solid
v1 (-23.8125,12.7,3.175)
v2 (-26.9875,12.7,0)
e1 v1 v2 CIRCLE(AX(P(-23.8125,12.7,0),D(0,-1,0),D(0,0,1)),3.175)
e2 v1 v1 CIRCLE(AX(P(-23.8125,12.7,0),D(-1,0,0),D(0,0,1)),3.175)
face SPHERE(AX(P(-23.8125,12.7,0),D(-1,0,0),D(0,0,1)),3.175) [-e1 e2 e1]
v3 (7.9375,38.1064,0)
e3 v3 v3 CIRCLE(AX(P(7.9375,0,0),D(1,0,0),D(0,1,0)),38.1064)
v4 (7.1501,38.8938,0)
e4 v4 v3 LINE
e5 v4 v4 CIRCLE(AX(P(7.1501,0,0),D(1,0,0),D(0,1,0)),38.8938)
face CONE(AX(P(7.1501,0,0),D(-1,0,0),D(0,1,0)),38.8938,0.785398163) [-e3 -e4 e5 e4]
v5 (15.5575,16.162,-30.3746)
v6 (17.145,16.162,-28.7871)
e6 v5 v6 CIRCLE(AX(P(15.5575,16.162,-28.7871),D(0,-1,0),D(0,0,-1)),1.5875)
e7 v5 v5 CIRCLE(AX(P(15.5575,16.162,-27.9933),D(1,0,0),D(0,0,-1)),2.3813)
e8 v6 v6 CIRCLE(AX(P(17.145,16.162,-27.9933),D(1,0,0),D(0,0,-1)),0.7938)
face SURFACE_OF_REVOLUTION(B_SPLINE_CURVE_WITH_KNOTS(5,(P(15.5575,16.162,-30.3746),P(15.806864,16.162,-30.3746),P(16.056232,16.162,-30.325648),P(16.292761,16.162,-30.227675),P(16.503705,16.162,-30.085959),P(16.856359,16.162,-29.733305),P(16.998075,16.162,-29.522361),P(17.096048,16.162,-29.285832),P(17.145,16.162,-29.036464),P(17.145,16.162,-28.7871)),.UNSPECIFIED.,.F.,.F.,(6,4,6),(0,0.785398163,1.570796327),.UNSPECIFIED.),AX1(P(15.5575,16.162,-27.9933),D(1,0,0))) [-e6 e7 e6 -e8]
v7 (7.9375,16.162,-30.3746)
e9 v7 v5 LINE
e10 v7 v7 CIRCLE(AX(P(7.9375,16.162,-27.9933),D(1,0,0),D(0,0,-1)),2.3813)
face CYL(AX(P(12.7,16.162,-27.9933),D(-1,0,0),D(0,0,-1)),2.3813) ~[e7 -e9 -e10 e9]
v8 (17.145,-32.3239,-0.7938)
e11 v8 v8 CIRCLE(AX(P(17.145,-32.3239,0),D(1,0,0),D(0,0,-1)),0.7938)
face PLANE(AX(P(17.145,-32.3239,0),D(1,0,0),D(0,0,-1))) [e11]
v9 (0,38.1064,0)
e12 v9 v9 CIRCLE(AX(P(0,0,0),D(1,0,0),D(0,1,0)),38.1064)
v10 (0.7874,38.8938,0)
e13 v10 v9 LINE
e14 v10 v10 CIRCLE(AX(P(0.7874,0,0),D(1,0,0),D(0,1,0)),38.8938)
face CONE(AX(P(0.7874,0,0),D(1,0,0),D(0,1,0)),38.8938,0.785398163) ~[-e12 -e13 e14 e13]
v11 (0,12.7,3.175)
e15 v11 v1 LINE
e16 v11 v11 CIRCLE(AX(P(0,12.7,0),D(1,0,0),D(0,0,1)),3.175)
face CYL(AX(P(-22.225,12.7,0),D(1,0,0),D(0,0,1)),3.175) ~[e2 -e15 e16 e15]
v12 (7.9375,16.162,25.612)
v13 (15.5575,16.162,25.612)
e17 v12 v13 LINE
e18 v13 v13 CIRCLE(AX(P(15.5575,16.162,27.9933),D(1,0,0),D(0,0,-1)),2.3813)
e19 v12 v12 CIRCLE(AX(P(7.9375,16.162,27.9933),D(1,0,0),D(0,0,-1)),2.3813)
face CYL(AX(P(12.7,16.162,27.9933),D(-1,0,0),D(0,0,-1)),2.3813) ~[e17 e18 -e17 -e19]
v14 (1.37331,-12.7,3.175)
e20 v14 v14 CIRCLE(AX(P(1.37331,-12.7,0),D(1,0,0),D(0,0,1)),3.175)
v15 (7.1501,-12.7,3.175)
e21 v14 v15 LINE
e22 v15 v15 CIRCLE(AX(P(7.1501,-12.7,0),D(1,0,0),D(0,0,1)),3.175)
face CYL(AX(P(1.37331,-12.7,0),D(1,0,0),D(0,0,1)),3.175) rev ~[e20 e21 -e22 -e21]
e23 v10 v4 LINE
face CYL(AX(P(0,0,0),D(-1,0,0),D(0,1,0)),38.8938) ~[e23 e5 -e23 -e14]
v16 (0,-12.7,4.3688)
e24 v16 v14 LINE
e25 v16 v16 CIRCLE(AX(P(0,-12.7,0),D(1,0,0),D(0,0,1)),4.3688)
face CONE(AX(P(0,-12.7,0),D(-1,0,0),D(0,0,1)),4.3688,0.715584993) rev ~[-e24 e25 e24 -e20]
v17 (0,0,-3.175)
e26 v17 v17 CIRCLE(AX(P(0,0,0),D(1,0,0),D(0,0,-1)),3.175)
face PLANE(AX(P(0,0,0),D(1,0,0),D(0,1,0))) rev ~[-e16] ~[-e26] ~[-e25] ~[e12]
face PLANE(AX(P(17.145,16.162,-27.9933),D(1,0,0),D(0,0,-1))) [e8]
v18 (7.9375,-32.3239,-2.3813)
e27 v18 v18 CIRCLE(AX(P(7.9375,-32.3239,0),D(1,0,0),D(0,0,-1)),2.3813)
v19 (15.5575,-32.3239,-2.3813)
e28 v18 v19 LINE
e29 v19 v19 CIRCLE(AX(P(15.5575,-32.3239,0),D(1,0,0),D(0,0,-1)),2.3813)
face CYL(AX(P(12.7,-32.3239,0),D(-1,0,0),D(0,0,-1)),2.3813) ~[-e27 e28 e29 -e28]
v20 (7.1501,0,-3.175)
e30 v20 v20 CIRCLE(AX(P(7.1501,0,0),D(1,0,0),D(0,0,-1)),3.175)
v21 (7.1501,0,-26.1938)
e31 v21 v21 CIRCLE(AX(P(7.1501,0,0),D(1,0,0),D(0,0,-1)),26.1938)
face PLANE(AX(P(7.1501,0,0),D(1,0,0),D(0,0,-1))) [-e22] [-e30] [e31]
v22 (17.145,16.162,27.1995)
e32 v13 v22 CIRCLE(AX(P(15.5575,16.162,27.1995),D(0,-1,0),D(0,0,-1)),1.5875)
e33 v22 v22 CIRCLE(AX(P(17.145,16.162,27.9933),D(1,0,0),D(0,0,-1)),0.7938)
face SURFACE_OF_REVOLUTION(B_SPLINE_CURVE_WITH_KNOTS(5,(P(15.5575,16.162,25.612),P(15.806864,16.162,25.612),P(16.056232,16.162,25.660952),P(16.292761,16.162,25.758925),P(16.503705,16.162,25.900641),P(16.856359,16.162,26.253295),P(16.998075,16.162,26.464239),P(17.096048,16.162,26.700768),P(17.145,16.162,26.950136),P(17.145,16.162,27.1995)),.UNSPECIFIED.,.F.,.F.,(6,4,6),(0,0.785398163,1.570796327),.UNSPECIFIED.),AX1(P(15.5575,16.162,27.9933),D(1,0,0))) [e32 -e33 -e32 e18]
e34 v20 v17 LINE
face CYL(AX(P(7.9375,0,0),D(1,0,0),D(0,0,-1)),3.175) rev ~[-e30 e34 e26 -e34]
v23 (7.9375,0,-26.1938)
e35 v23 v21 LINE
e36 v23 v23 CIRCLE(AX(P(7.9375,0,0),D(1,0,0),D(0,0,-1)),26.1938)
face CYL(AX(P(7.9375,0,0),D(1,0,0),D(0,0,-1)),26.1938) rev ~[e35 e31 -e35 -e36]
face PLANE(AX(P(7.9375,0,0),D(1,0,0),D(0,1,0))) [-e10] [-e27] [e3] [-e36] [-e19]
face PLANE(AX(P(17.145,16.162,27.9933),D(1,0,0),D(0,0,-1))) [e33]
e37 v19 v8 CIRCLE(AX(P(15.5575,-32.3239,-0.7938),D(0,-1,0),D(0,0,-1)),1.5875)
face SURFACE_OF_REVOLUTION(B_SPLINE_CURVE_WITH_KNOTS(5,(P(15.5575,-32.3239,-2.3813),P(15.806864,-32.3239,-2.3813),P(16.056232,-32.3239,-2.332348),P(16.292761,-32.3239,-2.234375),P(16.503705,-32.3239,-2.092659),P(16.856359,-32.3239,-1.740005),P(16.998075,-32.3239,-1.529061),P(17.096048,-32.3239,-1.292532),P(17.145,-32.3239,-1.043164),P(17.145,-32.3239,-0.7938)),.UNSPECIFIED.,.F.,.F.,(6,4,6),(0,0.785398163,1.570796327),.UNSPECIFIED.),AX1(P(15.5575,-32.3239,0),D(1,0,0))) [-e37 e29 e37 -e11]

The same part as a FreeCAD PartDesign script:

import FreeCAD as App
import Part
import Sketcher

V = App.Vector
Q = App.Units.Quantity


def edges_at(feature, points):
    """Names of the edges that pass closest to the given points."""
    edges = feature.Shape.Edges
    near = lambda p: min(range(len(edges)), key=lambda i: edges[i].distToShape(Part.Vertex(*p))[0])
    return sorted({f"Edge{near(p) + 1}" for p in points})

doc = App.newDocument("Part")
body = doc.addObject("PartDesign::Body", "Body")

# Sketch on YZ plane
sketch1 = body.newObject("Sketcher::SketchObject", "Sketch")
sketch1.AttachmentSupport = (doc.getObject("YZ_Plane"), [""])
sketch1.MapMode = "FlatFace"
sketch1.addGeometry(Part.Circle(V(0, 0, 0), V(0, 0, 1), 39), False)
sketch1.addConstraint([
    Sketcher.Constraint("Coincident", 0, 3, -1, 1),
    Sketcher.Constraint("Diameter", 0, Q("3.0625 in")),
])
pad1 = body.newObject("PartDesign::Pad", "Pad")
pad1.Profile = sketch1
pad1.Length = Q("0.3125 in")
doc.recompute()

chamfer = body.newObject("PartDesign::Chamfer", "Chamfer")
chamfer.Base = (pad1, edges_at(pad1, [(7.938, -38.894, 0), (0, -38.894, 0)]))
chamfer.Size = Q("0.031 in")

# Sketch on YZ plane
sketch2 = body.newObject("Sketcher::SketchObject", "Sketch001")
sketch2.AttachmentSupport = (doc.getObject("YZ_Plane"), [""])
sketch2.MapMode = "FlatFace"
sketch2.AttachmentOffset = App.Placement(V(0, 0, 0.3125 * 25.4), App.Rotation())
sketch2.addGeometry(Part.Circle(V(0, 0, 0), V(0, 0, 1), 3.2), False)
sketch2.addConstraint([
    Sketcher.Constraint("Coincident", 0, 3, -1, 1),
    Sketcher.Constraint("Diameter", 0, Q("0.25 in")),
])
pocket1 = body.newObject("PartDesign::Pocket", "Pocket")
pocket1.Profile = sketch2
pocket1.Length = Q("0.3125 in")

# Sketch on YZ plane
sketch3 = body.newObject("Sketcher::SketchObject", "Sketch002")
sketch3.AttachmentSupport = (doc.getObject("YZ_Plane"), [""])
sketch3.MapMode = "FlatFace"
sketch3.addGeometry(Part.Circle(V(-12.7, 0, 0), V(0, 0, 1), 3.2), False)
sketch3.addConstraint([
    Sketcher.Constraint("PointOnObject", 0, 3, -1),
    Sketcher.Constraint("Diameter", 0, Q("0.25 in")),
    Sketcher.Constraint("DistanceX", 0, 3, -1, 1, Q("0.5 in")),
])
doc.recompute()
hole = body.newObject("PartDesign::Hole", "Hole")
hole.Profile = sketch3
hole.ThreadType = "None"
hole.Diameter = Q("0.25 in")
hole.DepthType = "ThroughAll"
hole.HoleCutType = "Countersink"
hole.HoleCutDiameter = Q("0.344 in")
hole.HoleCutCountersinkAngle = 82
hole.Reversed = True

# Sketch on YZ plane
sketch4 = body.newObject("Sketcher::SketchObject", "Sketch003")
sketch4.AttachmentSupport = (doc.getObject("YZ_Plane"), [""])
sketch4.MapMode = "FlatFace"
sketch4.AttachmentOffset = App.Placement(V(0, 0, 0.3125 * 25.4), App.Rotation())
sketch4.addGeometry(Part.Circle(V(0, 0, 0), V(0, 0, 1), 26), False)
sketch4.addConstraint([
    Sketcher.Constraint("Coincident", 0, 3, -1, 1),
    Sketcher.Constraint("Diameter", 0, Q("2.0625 in")),
])
pocket2 = body.newObject("PartDesign::Pocket", "Pocket001")
pocket2.Profile = sketch4
pocket2.Length = Q("0.031 in")

# Sketch on YZ plane
sketch5 = body.newObject("Sketcher::SketchObject", "Sketch004")
sketch5.AttachmentSupport = (doc.getObject("YZ_Plane"), [""])
sketch5.MapMode = "FlatFace"
sketch5.addGeometry(Part.Circle(V(12.7, 0, 0), V(0, 0, 1), 3.2), False)
sketch5.addConstraint([
    Sketcher.Constraint("PointOnObject", 0, 3, -1),
    Sketcher.Constraint("Diameter", 0, Q("0.25 in")),
    Sketcher.Constraint("DistanceX", -1, 1, 0, 3, Q("0.5 in")),
])
pad2 = body.newObject("PartDesign::Pad", "Pad001")
pad2.Profile = sketch5
pad2.Length = Q("0.875 in")
pad2.Reversed = True

# Sketch on YZ plane
sketch6 = body.newObject("Sketcher::SketchObject", "Sketch005")
sketch6.AttachmentSupport = (doc.getObject("YZ_Plane"), [""])
sketch6.MapMode = "FlatFace"
sketch6.AttachmentOffset = App.Placement(V(0, 0, -0.875 * 25.4), App.Rotation())
sketch6.addGeometry(Part.Circle(V(12.7, 0, 0), V(0, 0, 1), 3.2), False)
sketch6.addConstraint([
    Sketcher.Constraint("PointOnObject", 0, 3, -1),
    Sketcher.Constraint("Diameter", 0, Q("0.25 in")),
    Sketcher.Constraint("DistanceX", -1, 1, 0, 3, Q("0.5 in")),
])
pad3 = body.newObject("PartDesign::Pad", "Pad002")
pad3.Profile = sketch6
pad3.Length = Q("0.1875 in")
pad3.Reversed = True
doc.recompute()

fillet = body.newObject("PartDesign::Fillet", "Fillet")
fillet.Base = (pad3, edges_at(pad3, [(-26.988, 12.7, -3.175)]))
fillet.Radius = Q("0.125 in")

# Sketch on YZ plane
sketch7 = body.newObject("Sketcher::SketchObject", "Sketch006")
sketch7.AttachmentSupport = (doc.getObject("YZ_Plane"), [""])
sketch7.MapMode = "FlatFace"
sketch7.AttachmentOffset = App.Placement(V(0, 0, 0.3125 * 25.4), App.Rotation())
sketch7.addGeometry([
    Part.Circle(V(-32.3, 0, 0), V(0, 0, 1), 2.4),
    Part.Circle(V(16.2, -28, 0), V(0, 0, 1), 2.4),
    Part.Circle(V(16.2, 28, 0), V(0, 0, 1), 2.4),
], False)
sketch7.addConstraint([
    Sketcher.Constraint("Equal", 0, 1),
    Sketcher.Constraint("Equal", 1, 2),
    Sketcher.Constraint("Symmetric", 1, 3, 2, 3, -1),
    Sketcher.Constraint("PointOnObject", 0, 3, -1),
    Sketcher.Constraint("Diameter", 0, Q("0.1875 in")),
    Sketcher.Constraint("DistanceX", 0, 3, -1, 1, Q("1.2726 in")),
    Sketcher.Constraint("DistanceX", -1, 1, 1, 3, Q("0.6363 in")),
    Sketcher.Constraint("DistanceY", 1, 3, -1, 1, Q("1.1021 in")),
])
pad4 = body.newObject("PartDesign::Pad", "Pad003")
pad4.Profile = sketch7
pad4.Length = Q("0.1875 in")

# Sketch on YZ plane
sketch8 = body.newObject("Sketcher::SketchObject", "Sketch007")
sketch8.AttachmentSupport = (doc.getObject("YZ_Plane"), [""])
sketch8.MapMode = "FlatFace"
sketch8.AttachmentOffset = App.Placement(V(0, 0, 0.5 * 25.4), App.Rotation())
sketch8.addGeometry(Part.Circle(V(16.2, -28, 0), V(0, 0, 1), 2.4), False)
sketch8.addConstraint([
    Sketcher.Constraint("Diameter", 0, Q("0.1875 in")),
    Sketcher.Constraint("DistanceX", -1, 1, 0, 3, Q("0.6363 in")),
    Sketcher.Constraint("DistanceY", 0, 3, -1, 1, Q("1.1021 in")),
])
pad5 = body.newObject("PartDesign::Pad", "Pad004")
pad5.Profile = sketch8
pad5.Length = Q("0.175 in")
doc.recompute()

fillet2 = body.newObject("PartDesign::Fillet", "Fillet001")
fillet2.Base = (pad5, edges_at(pad5, [(17.145, 16.162, -25.612)]))
fillet2.Radius = Q("0.0625 in")

# Sketch on YZ plane
sketch9 = body.newObject("Sketcher::SketchObject", "Sketch008")
sketch9.AttachmentSupport = (doc.getObject("YZ_Plane"), [""])
sketch9.MapMode = "FlatFace"
sketch9.AttachmentOffset = App.Placement(V(0, 0, 0.5 * 25.4), App.Rotation())
sketch9.addGeometry(Part.Circle(V(16.2, 28, 0), V(0, 0, 1), 2.4), False)
sketch9.addConstraint([
    Sketcher.Constraint("Diameter", 0, Q("0.1875 in")),
    Sketcher.Constraint("DistanceX", -1, 1, 0, 3, Q("0.6363 in")),
    Sketcher.Constraint("DistanceY", -1, 1, 0, 3, Q("1.1021 in")),
])
pad6 = body.newObject("PartDesign::Pad", "Pad005")
pad6.Profile = sketch9
pad6.Length = Q("0.175 in")
doc.recompute()

fillet3 = body.newObject("PartDesign::Fillet", "Fillet002")
fillet3.Base = (pad6, edges_at(pad6, [(17.145, 16.162, 30.375)]))
fillet3.Radius = Q("0.0625 in")

# Sketch on YZ plane
sketch10 = body.newObject("Sketcher::SketchObject", "Sketch009")
sketch10.AttachmentSupport = (doc.getObject("YZ_Plane"), [""])
sketch10.MapMode = "FlatFace"
sketch10.AttachmentOffset = App.Placement(V(0, 0, 0.5 * 25.4), App.Rotation())
sketch10.addGeometry(Part.Circle(V(-32.3, 0, 0), V(0, 0, 1), 2.4), False)
sketch10.addConstraint([
    Sketcher.Constraint("PointOnObject", 0, 3, -1),
    Sketcher.Constraint("Diameter", 0, Q("0.1875 in")),
    Sketcher.Constraint("DistanceX", 0, 3, -1, 1, Q("1.2726 in")),
])
pad7 = body.newObject("PartDesign::Pad", "Pad006")
pad7.Profile = sketch10
pad7.Length = Q("0.175 in")
doc.recompute()

fillet4 = body.newObject("PartDesign::Fillet", "Fillet003")
fillet4.Base = (pad7, edges_at(pad7, [(17.145, -32.324, 2.381)]))
fillet4.Radius = Q("0.0625 in")

doc.recompute()
